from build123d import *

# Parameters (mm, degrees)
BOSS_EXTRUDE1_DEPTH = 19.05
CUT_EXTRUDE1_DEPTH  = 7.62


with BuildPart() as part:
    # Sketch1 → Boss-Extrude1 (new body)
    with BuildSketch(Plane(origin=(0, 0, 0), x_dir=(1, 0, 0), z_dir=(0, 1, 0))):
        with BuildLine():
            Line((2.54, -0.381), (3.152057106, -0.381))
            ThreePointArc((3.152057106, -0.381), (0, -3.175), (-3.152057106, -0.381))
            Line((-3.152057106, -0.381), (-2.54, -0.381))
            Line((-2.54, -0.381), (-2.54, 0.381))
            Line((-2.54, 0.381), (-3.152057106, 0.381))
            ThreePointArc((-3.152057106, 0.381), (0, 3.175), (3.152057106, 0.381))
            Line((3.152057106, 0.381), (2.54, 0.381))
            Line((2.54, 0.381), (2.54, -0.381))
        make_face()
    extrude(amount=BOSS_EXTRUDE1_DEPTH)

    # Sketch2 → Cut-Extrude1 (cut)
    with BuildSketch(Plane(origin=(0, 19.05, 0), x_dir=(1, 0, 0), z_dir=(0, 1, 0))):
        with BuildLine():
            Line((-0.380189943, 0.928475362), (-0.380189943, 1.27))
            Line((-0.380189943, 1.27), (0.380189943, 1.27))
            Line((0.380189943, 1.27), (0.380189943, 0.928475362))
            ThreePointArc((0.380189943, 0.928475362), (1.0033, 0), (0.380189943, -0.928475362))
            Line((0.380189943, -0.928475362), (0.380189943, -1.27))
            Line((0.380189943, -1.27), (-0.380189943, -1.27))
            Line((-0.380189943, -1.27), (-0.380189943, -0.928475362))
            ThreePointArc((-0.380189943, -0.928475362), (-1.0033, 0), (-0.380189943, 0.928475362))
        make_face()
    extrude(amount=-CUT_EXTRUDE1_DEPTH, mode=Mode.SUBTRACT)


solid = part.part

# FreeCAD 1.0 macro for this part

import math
import FreeCAD as App
import Part
import Sketcher
from FreeCAD import Vector
Q = App.Units.Quantity

doc = App.newDocument("Part")
body = doc.addObject("PartDesign::Body", "Body")

sketch1 = doc.addObject("Sketcher::SketchObject", "Sketch")
body.addObject(sketch1)
sketch1.AttachmentSupport = (doc.XZ_Plane, [""])
sketch1.MapMode = "FlatFace"
sketch1.addGeometry([
    Part.LineSegment(Vector(3.2, 0.4, 0), Vector(2.5, 0.4, 0)),
    Part.LineSegment(Vector(2.5, 0.4, 0), Vector(2.5, -0.4, 0)),
    Part.LineSegment(Vector(2.5, -0.4, 0), Vector(3.2, -0.4, 0)),
    Part.ArcOfCircle(Part.Circle(Vector(0, 0, 0), Vector(0, 0, 1), 3.2), math.radians(-173), math.radians(-7)),
    Part.LineSegment(Vector(-3.2, -0.4, 0), Vector(-2.5, -0.4, 0)),
    Part.LineSegment(Vector(-2.5, -0.4, 0), Vector(-2.5, 0.4, 0)),
    Part.LineSegment(Vector(-2.5, 0.4, 0), Vector(-3.2, 0.4, 0)),
    Part.ArcOfCircle(Part.Circle(Vector(0, 0, 0), Vector(0, 0, 1), 3.2), math.radians(7), math.radians(173)),
], False)
sketch1.addConstraint([
    Sketcher.Constraint("Coincident", 0, 2, 1, 1),
    Sketcher.Constraint("Coincident", 1, 2, 2, 1),
    Sketcher.Constraint("Coincident", 2, 2, 3, 2),
    Sketcher.Constraint("Coincident", 3, 1, 4, 1),
    Sketcher.Constraint("Coincident", 4, 2, 5, 1),
    Sketcher.Constraint("Coincident", 5, 2, 6, 1),
    Sketcher.Constraint("Coincident", 6, 2, 7, 2),
    Sketcher.Constraint("Coincident", 7, 1, 0, 1),
    Sketcher.Constraint("Horizontal", 0),
    Sketcher.Constraint("Vertical", 1),
    Sketcher.Constraint("Horizontal", 2),
    Sketcher.Constraint("Horizontal", 4),
    Sketcher.Constraint("Vertical", 5),
    Sketcher.Constraint("Horizontal", 6),
    Sketcher.Constraint("Coincident", 3, 3, -1, 1),
    Sketcher.Constraint("Coincident", 7, 3, -1, 1),
    Sketcher.Constraint("Equal", 3, 7),
    Sketcher.Constraint("Symmetric", 0, 2, 4, 2, -1, 1),
    Sketcher.Constraint("Horizontal", 2, 2, 3, 1),
    Sketcher.Constraint("Horizontal", 0, 2, 5, 2),
    Sketcher.Constraint("Radius", 3, Q("0.125 in")),
    Sketcher.Constraint("DistanceY", 1, 2, 1, 1, Q("0.03 in")),
    Sketcher.Constraint("DistanceX", -1, 1, 0, 2, Q("0.1 in")),
])
pad1 = doc.addObject("PartDesign::Pad", "Pad")
body.addObject(pad1)
pad1.Profile = sketch1
pad1.Length = Q("0.75 in")
pad1.Reversed = True

sketch2 = doc.addObject("Sketcher::SketchObject", "Sketch001")
body.addObject(sketch2)
sketch2.AttachmentSupport = (doc.XZ_Plane, [""])
sketch2.MapMode = "FlatFace"
sketch2.AttachmentOffset = App.Placement(Vector(0, 0, -0.75 * 25.4), App.Rotation())
sketch2.addGeometry([
    Part.LineSegment(Vector(-0.38, -1.27, 0), Vector(-0.38, -0.93, 0)),
    Part.ArcOfCircle(Part.Circle(Vector(0, 0, 0), Vector(0, 0, 1), 1), math.radians(112), math.radians(248)),
    Part.LineSegment(Vector(-0.38, 0.93, 0), Vector(-0.38, 1.27, 0)),
    Part.LineSegment(Vector(-0.38, 1.27, 0), Vector(0.38, 1.27, 0)),
    Part.LineSegment(Vector(0.38, 1.27, 0), Vector(0.38, 0.93, 0)),
    Part.ArcOfCircle(Part.Circle(Vector(0, 0, 0), Vector(0, 0, 1), 1), math.radians(-68), math.radians(68)),
    Part.LineSegment(Vector(0.38, -0.93, 0), Vector(0.38, -1.27, 0)),
    Part.LineSegment(Vector(0.38, -1.27, 0), Vector(-0.38, -1.27, 0)),
], False)
sketch2.addConstraint([
    Sketcher.Constraint("Coincident", 0, 2, 1, 2),
    Sketcher.Constraint("Coincident", 1, 1, 2, 1),
    Sketcher.Constraint("Coincident", 2, 2, 3, 1),
    Sketcher.Constraint("Coincident", 3, 2, 4, 1),
    Sketcher.Constraint("Coincident", 4, 2, 5, 2),
    Sketcher.Constraint("Coincident", 5, 1, 6, 1),
    Sketcher.Constraint("Coincident", 6, 2, 7, 1),
    Sketcher.Constraint("Coincident", 7, 2, 0, 1),
    Sketcher.Constraint("Vertical", 0),
    Sketcher.Constraint("Vertical", 2),
    Sketcher.Constraint("Horizontal", 3),
    Sketcher.Constraint("Vertical", 4),
    Sketcher.Constraint("Vertical", 6),
    Sketcher.Constraint("Horizontal", 7),
    Sketcher.Constraint("Coincident", 1, 3, -1, 1),
    Sketcher.Constraint("Coincident", 5, 3, -1, 1),
    Sketcher.Constraint("Equal", 1, 5),
    Sketcher.Constraint("Symmetric", 2, 2, 6, 2, -1, 1),
    Sketcher.Constraint("Horizontal", 1, 1, 4, 2),
    Sketcher.Constraint("Horizontal", 0, 2, 5, 1),
    Sketcher.Constraint("Radius", 1, Q("0.0395 in")),
    Sketcher.Constraint("DistanceY", -1, 1, 2, 2, Q("0.05 in")),
    Sketcher.Constraint("DistanceX", 3, 1, 3, 2, Q("0.76038 mm")),
])
pocket1 = doc.addObject("PartDesign::Pocket", "Pocket")
body.addObject(pocket1)
pocket1.Profile = sketch2
pocket1.Length = Q("0.3 in")
pocket1.Reversed = True

doc.recompute()
